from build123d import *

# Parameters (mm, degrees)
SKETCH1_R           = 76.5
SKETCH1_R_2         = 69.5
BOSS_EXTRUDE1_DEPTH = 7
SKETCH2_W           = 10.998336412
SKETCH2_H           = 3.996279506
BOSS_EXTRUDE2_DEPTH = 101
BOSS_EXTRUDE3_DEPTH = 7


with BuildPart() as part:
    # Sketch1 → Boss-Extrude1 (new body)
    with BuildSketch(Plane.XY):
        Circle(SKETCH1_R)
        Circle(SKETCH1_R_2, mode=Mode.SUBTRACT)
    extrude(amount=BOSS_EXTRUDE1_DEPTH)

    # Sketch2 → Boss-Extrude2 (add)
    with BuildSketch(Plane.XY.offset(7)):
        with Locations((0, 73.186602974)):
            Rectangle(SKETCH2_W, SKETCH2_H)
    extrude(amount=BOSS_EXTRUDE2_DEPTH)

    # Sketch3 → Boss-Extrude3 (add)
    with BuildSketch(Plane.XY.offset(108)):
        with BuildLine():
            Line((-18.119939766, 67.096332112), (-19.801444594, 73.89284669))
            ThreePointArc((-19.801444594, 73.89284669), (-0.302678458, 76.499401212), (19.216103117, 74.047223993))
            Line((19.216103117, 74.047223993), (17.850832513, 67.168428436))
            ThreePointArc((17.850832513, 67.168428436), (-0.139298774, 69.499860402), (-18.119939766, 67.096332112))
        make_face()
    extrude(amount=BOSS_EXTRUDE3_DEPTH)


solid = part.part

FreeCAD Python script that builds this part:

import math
import FreeCAD as App
import Part
import Sketcher

V = App.Vector


def add_polygon(sketch, points):
    """Adds a closed chain of lines whose ends are joined by coincident constraints."""
    first, n = sketch.GeometryCount, len(points)
    for a, b in zip(points, points[1:] + points[:1]):
        sketch.addGeometry(Part.LineSegment(App.Vector(*a, 0), App.Vector(*b, 0)), False)
    for i in range(n):
        sketch.addConstraint(Sketcher.Constraint("Coincident", first + i, 2, first + (i + 1) % n, 1))

doc = App.newDocument("Part")
body = doc.addObject("PartDesign::Body", "Body")

sketch1 = body.newObject("Sketcher::SketchObject", "Sketch")
sketch1.AttachmentSupport = (doc.getObject("XY_Plane"), [""])
sketch1.MapMode = "FlatFace"
sketch1.addGeometry(Part.Circle(V(0, 0, 0), V(0, 0, 1), 76), False)
sketch1.addGeometry(Part.Circle(V(0, 0, 0), V(0, 0, 1), 70), False)
sketch1.addConstraint(Sketcher.Constraint("Coincident", 0, 3, -1, 1))
sketch1.addConstraint(Sketcher.Constraint("Coincident", 1, 3, -1, 1))
sketch1.addConstraint(Sketcher.Constraint("Diameter", 0, 153.0))
sketch1.addConstraint(Sketcher.Constraint("Diameter", 1, 139.0))
pad1 = body.newObject("PartDesign::Pad", "Pad")
pad1.Profile = sketch1
pad1.Length = 7

sketch2 = body.newObject("Sketcher::SketchObject", "Sketch001")
sketch2.AttachmentSupport = (doc.getObject("XY_Plane"), [""])
sketch2.MapMode = "FlatFace"
sketch2.AttachmentOffset = App.Placement(V(0, 0, 7), App.Rotation())
add_polygon(sketch2, [(-5.5, 75.2), (-5.5, 71.2), (5.5, 71.2), (5.5, 75.2)])
sketch2.addConstraint(Sketcher.Constraint("Vertical", 0))
sketch2.addConstraint(Sketcher.Constraint("Horizontal", 1))
sketch2.addConstraint(Sketcher.Constraint("Vertical", 2))
sketch2.addConstraint(Sketcher.Constraint("Horizontal", 3))
sketch2.addConstraint(Sketcher.Constraint("DistanceY", 0, 2, 0, 1, 3.99628))
sketch2.addConstraint(Sketcher.Constraint("DistanceX", 1, 1, 1, 2, 10.998336))
sketch2.addConstraint(Sketcher.Constraint("DistanceX", 0, 2, -1, 1, 5.499168))
sketch2.addConstraint(Sketcher.Constraint("DistanceY", -1, 1, 0, 2, 71.188463))
pad2 = body.newObject("PartDesign::Pad", "Pad001")
pad2.Profile = sketch2
pad2.Length = 101

sketch3 = body.newObject("Sketcher::SketchObject", "Sketch002")
sketch3.AttachmentSupport = (doc.getObject("XY_Plane"), [""])
sketch3.MapMode = "FlatFace"
sketch3.AttachmentOffset = App.Placement(V(0, 0, 108), App.Rotation())
sketch3.addGeometry(Part.LineSegment(V(-20, 74, 0), V(-18, 67, 0)), False)
sketch3.addGeometry(Part.ArcOfCircle(Part.Circle(V(0, 0, 0), V(0, 0, 1), 69), math.radians(75), math.radians(105)), False)
sketch3.addGeometry(Part.LineSegment(V(18, 67, 0), V(19, 74, 0)), False)
sketch3.addGeometry(Part.ArcOfCircle(Part.Circle(V(0, 0, 0), V(0, 0, 1), 76), math.radians(75), math.radians(105)), False)
sketch3.addConstraint(Sketcher.Constraint("Coincident", 0, 2, 1, 2))
sketch3.addConstraint(Sketcher.Constraint("Coincident", 1, 1, 2, 1))
sketch3.addConstraint(Sketcher.Constraint("Coincident", 2, 2, 3, 1))
sketch3.addConstraint(Sketcher.Constraint("Coincident", 3, 2, 0, 1))
sketch3.addConstraint(Sketcher.Constraint("Coincident", 1, 3, -1, 1))
sketch3.addConstraint(Sketcher.Constraint("Coincident", 3, 3, -1, 1))
sketch3.addConstraint(Sketcher.Constraint("Radius", 1, 69.5))
sketch3.addConstraint(Sketcher.Constraint("Radius", 3, 76.5))
sketch3.addConstraint(Sketcher.Constraint("DistanceX", 0, 2, -1, 1, 18.11994))
sketch3.addConstraint(Sketcher.Constraint("DistanceY", -1, 1, 1, 1, 67.168428))
sketch3.addConstraint(Sketcher.Constraint("DistanceX", 1, 1, 2, 2, 1.365271))
sketch3.addConstraint(Sketcher.Constraint("DistanceY", 1, 1, 3, 2, 6.724418))
pad3 = body.newObject("PartDesign::Pad", "Pad002")
pad3.Profile = sketch3
pad3.Length = 7

doc.recompute()
